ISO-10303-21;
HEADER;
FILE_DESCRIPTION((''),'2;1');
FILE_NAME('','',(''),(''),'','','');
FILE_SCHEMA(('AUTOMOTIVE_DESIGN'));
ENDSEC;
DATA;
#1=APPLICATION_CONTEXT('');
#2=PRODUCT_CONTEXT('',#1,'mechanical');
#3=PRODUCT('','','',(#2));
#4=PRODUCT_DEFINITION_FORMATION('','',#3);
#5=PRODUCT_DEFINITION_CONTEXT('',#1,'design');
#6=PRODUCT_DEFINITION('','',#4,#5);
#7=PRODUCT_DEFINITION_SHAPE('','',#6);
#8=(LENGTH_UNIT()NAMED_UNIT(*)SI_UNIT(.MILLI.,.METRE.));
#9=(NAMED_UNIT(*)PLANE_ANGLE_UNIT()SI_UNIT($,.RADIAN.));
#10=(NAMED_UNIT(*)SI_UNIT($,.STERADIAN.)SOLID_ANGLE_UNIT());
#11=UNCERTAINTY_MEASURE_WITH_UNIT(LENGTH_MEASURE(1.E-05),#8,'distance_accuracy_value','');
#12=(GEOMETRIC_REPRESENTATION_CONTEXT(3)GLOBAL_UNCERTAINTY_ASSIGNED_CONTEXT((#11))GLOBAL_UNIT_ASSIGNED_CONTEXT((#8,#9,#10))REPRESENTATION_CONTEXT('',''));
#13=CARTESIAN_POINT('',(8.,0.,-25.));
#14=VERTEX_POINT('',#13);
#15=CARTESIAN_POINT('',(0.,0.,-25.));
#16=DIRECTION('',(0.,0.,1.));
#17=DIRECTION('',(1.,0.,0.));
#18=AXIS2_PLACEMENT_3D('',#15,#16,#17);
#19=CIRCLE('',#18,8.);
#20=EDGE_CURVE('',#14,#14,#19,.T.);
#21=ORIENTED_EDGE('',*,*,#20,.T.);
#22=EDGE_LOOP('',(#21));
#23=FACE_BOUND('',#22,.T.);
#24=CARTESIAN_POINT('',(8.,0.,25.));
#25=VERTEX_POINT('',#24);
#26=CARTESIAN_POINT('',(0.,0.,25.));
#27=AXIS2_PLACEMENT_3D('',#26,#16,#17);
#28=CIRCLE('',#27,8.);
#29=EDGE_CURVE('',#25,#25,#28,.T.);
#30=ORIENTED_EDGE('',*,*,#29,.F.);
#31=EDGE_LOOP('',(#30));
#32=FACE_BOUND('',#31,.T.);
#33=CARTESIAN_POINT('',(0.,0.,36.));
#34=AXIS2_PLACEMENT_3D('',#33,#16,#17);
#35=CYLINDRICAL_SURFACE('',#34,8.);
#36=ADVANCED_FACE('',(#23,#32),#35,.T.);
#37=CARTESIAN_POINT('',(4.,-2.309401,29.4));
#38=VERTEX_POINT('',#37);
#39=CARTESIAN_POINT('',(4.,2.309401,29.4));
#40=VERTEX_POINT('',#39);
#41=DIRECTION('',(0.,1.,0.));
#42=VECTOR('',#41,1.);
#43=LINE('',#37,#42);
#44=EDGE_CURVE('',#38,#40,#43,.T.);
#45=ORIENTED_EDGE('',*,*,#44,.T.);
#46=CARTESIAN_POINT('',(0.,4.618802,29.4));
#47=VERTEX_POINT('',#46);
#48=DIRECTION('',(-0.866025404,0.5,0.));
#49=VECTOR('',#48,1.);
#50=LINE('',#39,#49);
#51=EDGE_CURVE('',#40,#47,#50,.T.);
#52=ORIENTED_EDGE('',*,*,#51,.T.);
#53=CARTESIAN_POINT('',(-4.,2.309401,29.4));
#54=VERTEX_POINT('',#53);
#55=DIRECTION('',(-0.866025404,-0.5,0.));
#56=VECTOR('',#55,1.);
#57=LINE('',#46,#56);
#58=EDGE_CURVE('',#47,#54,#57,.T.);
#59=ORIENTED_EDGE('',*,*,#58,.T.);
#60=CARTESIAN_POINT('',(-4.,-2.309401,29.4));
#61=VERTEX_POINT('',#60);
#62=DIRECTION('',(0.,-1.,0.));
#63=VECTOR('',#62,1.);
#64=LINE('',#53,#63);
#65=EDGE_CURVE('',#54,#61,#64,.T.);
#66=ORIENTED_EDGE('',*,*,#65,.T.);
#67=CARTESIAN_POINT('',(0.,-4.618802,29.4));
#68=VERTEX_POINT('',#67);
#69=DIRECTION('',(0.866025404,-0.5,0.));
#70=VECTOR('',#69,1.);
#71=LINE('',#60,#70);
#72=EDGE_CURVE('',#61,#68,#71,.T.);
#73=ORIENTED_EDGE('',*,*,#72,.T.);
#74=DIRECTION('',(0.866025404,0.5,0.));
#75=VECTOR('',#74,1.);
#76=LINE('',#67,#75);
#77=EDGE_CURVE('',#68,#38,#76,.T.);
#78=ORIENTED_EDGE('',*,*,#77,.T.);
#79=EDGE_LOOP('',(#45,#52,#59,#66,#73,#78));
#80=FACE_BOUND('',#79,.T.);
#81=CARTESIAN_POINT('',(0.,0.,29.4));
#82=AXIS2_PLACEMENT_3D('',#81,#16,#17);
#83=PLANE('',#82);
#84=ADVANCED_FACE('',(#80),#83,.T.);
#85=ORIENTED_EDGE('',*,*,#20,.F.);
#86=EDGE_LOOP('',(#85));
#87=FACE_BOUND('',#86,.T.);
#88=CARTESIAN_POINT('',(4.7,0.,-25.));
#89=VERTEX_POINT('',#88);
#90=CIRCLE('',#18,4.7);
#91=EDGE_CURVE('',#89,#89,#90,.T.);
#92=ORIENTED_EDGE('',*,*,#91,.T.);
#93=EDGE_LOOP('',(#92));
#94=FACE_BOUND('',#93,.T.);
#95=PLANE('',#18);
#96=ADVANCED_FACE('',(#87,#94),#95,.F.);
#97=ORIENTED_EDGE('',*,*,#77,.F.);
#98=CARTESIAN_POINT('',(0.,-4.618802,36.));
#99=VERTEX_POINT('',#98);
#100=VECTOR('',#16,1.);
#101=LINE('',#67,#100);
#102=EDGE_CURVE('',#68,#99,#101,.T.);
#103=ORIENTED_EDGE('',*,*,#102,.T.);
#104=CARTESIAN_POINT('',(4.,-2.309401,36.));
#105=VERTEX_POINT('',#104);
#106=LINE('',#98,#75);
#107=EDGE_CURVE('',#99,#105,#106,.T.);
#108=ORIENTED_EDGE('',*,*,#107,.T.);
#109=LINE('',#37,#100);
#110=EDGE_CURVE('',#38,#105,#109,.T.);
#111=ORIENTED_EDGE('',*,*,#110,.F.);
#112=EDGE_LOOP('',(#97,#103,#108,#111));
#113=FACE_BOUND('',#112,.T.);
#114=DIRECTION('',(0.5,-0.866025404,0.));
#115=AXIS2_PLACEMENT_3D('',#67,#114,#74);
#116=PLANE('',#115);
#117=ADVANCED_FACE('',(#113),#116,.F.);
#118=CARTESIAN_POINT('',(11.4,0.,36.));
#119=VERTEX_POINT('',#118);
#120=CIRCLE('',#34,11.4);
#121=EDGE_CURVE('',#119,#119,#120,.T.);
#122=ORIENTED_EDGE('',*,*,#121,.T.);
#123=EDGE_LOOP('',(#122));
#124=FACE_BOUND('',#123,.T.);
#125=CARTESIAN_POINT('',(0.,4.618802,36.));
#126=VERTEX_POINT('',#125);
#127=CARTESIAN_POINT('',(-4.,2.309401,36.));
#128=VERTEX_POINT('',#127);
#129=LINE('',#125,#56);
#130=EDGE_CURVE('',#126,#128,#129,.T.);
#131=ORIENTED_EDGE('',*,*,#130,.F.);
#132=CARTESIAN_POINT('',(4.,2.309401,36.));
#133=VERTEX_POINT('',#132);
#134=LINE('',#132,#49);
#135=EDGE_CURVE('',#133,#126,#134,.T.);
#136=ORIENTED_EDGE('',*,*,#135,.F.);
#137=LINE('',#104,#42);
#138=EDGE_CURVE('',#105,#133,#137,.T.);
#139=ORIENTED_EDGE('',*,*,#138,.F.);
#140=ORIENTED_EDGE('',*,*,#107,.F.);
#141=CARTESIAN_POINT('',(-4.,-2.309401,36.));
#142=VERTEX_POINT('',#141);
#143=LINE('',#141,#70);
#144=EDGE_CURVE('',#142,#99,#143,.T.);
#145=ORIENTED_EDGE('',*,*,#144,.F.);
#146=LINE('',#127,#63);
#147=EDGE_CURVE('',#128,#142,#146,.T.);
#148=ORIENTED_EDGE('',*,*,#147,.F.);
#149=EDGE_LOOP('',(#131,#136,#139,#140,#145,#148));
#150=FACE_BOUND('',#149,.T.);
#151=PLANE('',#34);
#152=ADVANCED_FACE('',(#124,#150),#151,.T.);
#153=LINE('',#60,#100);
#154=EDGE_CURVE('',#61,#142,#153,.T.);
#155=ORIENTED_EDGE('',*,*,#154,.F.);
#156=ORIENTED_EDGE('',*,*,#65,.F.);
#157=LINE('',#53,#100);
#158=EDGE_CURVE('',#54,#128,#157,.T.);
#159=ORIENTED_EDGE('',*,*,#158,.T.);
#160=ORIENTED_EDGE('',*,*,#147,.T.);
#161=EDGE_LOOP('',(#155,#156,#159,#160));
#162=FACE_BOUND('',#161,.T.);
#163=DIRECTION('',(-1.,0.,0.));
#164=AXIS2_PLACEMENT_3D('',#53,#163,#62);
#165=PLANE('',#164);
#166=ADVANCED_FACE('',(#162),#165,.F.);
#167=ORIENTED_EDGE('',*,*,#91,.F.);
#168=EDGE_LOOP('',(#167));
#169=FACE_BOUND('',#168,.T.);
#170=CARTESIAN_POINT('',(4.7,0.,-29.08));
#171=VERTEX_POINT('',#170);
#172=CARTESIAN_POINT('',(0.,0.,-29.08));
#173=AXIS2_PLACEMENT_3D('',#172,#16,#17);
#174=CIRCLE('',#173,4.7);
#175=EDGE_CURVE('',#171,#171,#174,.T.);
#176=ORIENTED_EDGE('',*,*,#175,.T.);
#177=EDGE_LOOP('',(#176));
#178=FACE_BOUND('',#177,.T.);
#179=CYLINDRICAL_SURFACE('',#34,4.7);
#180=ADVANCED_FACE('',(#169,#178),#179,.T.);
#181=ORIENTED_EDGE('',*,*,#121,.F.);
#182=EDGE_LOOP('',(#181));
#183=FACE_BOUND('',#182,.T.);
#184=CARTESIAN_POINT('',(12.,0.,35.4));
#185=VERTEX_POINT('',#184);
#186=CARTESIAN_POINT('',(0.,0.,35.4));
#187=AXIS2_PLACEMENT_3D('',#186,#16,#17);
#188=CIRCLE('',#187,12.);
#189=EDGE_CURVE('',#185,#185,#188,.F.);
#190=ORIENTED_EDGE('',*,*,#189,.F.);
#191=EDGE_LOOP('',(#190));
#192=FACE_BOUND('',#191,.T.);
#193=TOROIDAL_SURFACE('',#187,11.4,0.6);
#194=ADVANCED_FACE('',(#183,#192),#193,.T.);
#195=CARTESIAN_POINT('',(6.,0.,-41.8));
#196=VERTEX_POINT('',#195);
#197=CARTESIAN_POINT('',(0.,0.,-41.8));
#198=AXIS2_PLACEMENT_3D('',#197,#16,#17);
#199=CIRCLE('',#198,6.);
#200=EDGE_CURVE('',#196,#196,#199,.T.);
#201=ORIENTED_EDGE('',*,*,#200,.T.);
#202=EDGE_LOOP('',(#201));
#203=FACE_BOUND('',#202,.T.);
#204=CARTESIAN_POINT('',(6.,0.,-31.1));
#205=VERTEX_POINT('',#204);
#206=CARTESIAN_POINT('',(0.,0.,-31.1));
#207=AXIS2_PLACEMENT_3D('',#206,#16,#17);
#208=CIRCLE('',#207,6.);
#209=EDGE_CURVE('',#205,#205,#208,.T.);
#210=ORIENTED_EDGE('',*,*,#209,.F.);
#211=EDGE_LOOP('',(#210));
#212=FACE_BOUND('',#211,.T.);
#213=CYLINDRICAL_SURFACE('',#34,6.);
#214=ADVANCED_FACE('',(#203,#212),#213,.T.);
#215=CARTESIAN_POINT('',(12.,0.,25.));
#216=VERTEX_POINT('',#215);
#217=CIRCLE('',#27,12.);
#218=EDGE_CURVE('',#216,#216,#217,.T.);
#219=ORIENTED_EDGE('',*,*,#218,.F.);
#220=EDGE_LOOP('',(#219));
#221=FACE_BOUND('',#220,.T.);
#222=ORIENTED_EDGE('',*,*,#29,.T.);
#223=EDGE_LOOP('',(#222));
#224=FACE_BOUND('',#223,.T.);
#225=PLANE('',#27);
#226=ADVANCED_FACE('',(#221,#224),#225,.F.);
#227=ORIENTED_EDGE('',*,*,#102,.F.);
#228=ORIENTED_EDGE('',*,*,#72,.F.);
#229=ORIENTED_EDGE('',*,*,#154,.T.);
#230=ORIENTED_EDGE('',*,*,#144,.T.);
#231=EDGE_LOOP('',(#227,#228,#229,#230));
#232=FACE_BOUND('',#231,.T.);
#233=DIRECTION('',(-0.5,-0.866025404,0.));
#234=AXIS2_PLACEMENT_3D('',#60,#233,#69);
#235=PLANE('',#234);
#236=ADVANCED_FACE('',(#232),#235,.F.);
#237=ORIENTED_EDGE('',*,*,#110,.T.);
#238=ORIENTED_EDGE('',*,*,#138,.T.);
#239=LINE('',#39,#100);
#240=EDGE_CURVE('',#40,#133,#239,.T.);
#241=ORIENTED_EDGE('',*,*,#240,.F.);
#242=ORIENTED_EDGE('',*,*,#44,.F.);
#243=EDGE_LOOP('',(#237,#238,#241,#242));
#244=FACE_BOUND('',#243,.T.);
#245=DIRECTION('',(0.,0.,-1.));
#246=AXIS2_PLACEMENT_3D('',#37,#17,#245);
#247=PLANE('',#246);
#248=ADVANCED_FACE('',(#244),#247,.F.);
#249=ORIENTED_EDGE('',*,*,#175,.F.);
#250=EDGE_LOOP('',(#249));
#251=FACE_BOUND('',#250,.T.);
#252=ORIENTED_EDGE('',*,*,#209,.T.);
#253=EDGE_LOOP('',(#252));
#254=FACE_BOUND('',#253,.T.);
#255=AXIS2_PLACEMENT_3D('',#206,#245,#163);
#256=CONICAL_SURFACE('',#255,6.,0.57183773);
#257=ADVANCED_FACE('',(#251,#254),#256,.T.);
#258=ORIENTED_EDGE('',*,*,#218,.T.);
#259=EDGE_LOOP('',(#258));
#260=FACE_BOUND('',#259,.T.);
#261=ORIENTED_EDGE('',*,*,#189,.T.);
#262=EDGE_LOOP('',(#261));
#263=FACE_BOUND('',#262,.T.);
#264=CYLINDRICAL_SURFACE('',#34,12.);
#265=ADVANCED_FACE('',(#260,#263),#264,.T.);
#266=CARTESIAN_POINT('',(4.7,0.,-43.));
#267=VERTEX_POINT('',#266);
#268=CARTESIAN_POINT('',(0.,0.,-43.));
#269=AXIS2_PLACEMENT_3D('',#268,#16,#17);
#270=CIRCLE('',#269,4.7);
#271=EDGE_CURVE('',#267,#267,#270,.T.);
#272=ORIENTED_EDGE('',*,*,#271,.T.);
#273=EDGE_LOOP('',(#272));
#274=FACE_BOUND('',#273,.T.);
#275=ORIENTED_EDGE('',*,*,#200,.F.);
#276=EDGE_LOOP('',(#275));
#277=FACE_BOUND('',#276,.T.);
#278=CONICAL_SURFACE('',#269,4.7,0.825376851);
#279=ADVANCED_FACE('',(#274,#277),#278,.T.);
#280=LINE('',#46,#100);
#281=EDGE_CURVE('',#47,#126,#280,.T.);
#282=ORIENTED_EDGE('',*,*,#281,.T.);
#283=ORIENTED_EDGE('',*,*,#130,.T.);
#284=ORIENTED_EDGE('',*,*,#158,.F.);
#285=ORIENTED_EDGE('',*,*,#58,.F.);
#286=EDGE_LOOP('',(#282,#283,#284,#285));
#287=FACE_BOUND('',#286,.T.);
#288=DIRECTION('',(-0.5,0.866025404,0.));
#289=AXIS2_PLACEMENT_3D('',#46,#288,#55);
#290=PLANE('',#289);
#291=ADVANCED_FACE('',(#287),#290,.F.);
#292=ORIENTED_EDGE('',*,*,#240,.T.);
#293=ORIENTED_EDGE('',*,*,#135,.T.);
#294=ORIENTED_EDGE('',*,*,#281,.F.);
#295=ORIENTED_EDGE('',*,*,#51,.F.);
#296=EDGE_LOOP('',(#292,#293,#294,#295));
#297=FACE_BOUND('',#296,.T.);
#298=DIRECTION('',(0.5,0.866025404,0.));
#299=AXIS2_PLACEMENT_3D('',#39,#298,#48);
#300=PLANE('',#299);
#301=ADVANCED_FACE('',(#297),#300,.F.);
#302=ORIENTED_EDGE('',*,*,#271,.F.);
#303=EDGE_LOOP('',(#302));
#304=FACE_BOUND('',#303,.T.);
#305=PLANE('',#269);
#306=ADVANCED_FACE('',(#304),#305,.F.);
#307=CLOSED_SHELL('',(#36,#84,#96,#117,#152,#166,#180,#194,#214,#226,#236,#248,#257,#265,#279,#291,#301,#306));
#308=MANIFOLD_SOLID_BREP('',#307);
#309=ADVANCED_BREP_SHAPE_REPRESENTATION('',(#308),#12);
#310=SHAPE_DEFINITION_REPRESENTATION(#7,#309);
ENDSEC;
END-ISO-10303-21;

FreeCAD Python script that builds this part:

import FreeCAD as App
import Part
import Sketcher
from FreeCAD import Vector
Q = App.Units.Quantity


def edges_at(feature, points):
    """Names of the edges that pass closest to the given points."""
    edges = feature.Shape.Edges
    near = lambda p: min(range(len(edges)), key=lambda i: edges[i].distToShape(Part.Vertex(*p))[0])
    return sorted({f"Edge{near(p) + 1}" for p in points})

doc = App.newDocument("Part")
body = doc.addObject("PartDesign::Body", "Body")

# Sketch on XZ plane
sketch1 = body.newObject("Sketcher::SketchObject", "Sketch")
sketch1.AttachmentSupport = (doc.getObject("XZ_Plane"), [""])
sketch1.MapMode = "FlatFace"
sketch1.addGeometry(Part.LineSegment(Vector(0, 36, 0), Vector(0, -43, 0)), False)
sketch1.addGeometry(Part.LineSegment(Vector(0, -43, 0), Vector(-4.7, -43, 0)), False)
sketch1.addGeometry(Part.LineSegment(Vector(-4.7, -43, 0), Vector(-6, -41.8, 0)), False)
sketch1.addGeometry(Part.LineSegment(Vector(-6, -41.8, 0), Vector(-6, -31.1, 0)), False)
sketch1.addGeometry(Part.LineSegment(Vector(-6, -31.1, 0), Vector(-4.7, -29.08, 0)), False)
sketch1.addGeometry(Part.LineSegment(Vector(-4.7, -29.08, 0), Vector(-4.7, -25, 0)), False)
sketch1.addGeometry(Part.LineSegment(Vector(-4.7, -25, 0), Vector(-8, -25, 0)), False)
sketch1.addGeometry(Part.LineSegment(Vector(-8, -25, 0), Vector(-8, 25, 0)), False)
sketch1.addGeometry(Part.LineSegment(Vector(-8, 25, 0), Vector(-12, 25, 0)), False)
sketch1.addGeometry(Part.LineSegment(Vector(-12, 25, 0), Vector(-12, 36, 0)), False)
sketch1.addGeometry(Part.LineSegment(Vector(-12, 36, 0), Vector(0, 36, 0)), False)
sketch1.addConstraint(Sketcher.Constraint("Coincident", 0, 2, 1, 1))
sketch1.addConstraint(Sketcher.Constraint("Coincident", 1, 2, 2, 1))
sketch1.addConstraint(Sketcher.Constraint("Coincident", 2, 2, 3, 1))
sketch1.addConstraint(Sketcher.Constraint("Coincident", 3, 2, 4, 1))
sketch1.addConstraint(Sketcher.Constraint("Coincident", 4, 2, 5, 1))
sketch1.addConstraint(Sketcher.Constraint("Coincident", 5, 2, 6, 1))
sketch1.addConstraint(Sketcher.Constraint("Coincident", 6, 2, 7, 1))
sketch1.addConstraint(Sketcher.Constraint("Coincident", 7, 2, 8, 1))
sketch1.addConstraint(Sketcher.Constraint("Coincident", 8, 2, 9, 1))
sketch1.addConstraint(Sketcher.Constraint("Coincident", 9, 2, 10, 1))
sketch1.addConstraint(Sketcher.Constraint("Coincident", 10, 2, 0, 1))
sketch1.addConstraint(Sketcher.Constraint("Vertical", 0))
sketch1.addConstraint(Sketcher.Constraint("Horizontal", 1))
sketch1.addConstraint(Sketcher.Constraint("Vertical", 3))
sketch1.addConstraint(Sketcher.Constraint("Vertical", 5))
sketch1.addConstraint(Sketcher.Constraint("Horizontal", 6))
sketch1.addConstraint(Sketcher.Constraint("Vertical", 7))
sketch1.addConstraint(Sketcher.Constraint("Horizontal", 8))
sketch1.addConstraint(Sketcher.Constraint("Vertical", 9))
sketch1.addConstraint(Sketcher.Constraint("Horizontal", 10))
sketch1.addConstraint(Sketcher.Constraint("PointOnObject", 0, 2, -2))
sketch1.addConstraint(Sketcher.Constraint("Vertical", 1, 2, 4, 2))
sketch1.addConstraint(Sketcher.Constraint("DistanceX", 8, 2, 8, 1, 4.0))
sketch1.addConstraint(Sketcher.Constraint("DistanceX", 10, 1, 10, 2, 12.0))
sketch1.addConstraint(Sketcher.Constraint("DistanceY", 0, 2, 0, 1, 79.0))
sketch1.addConstraint(Sketcher.Constraint("DistanceY", 7, 1, 7, 2, 50.0))
sketch1.addConstraint(Sketcher.Constraint("DistanceY", 9, 1, 9, 2, 11.0))
sketch1.addConstraint(Sketcher.Constraint("DistanceX", 1, 2, 1, 1, 4.7))
sketch1.addConstraint(Sketcher.Constraint("DistanceY", 3, 1, 3, 2, 10.7))
sketch1.addConstraint(Sketcher.Constraint("DistanceY", 0, 2, -1, 1, 43.0))
sketch1.addConstraint(Sketcher.Constraint("DistanceX", 2, 2, -1, 1, 6.0))
sketch1.addConstraint(Sketcher.Constraint("DistanceY", 5, 1, 5, 2, 4.08))
sketch1.addConstraint(Sketcher.Constraint("DistanceY", 2, 2, -1, 1, 41.8))
revolution = body.newObject("PartDesign::Revolution", "Revolution")
revolution.Profile = sketch1
revolution.ReferenceAxis = (sketch1, ["V_Axis"])
revolution.Angle = 360

# Sketch on XY plane
sketch2 = body.newObject("Sketcher::SketchObject", "Sketch001")
sketch2.AttachmentSupport = (doc.getObject("XY_Plane"), [""])
sketch2.MapMode = "FlatFace"
sketch2.AttachmentOffset = App.Placement(Vector(0, 0, 36), App.Rotation())
sketch2.addGeometry(Part.LineSegment(Vector(4, 2.309401, 0), Vector(0, 4.618802, 0)), False)
sketch2.addGeometry(Part.LineSegment(Vector(0, 4.618802, 0), Vector(-4, 2.309401, 0)), False)
sketch2.addGeometry(Part.LineSegment(Vector(-4, 2.309401, 0), Vector(-4, -2.309401, 0)), False)
sketch2.addGeometry(Part.LineSegment(Vector(-4, -2.309401, 0), Vector(0, -4.618802, 0)), False)
sketch2.addGeometry(Part.LineSegment(Vector(0, -4.618802, 0), Vector(4, -2.309401, 0)), False)
sketch2.addGeometry(Part.LineSegment(Vector(4, -2.309401, 0), Vector(4, 2.309401, 0)), False)
sketch2.addConstraint(Sketcher.Constraint("Coincident", 0, 2, 1, 1))
sketch2.addConstraint(Sketcher.Constraint("Coincident", 1, 2, 2, 1))
sketch2.addConstraint(Sketcher.Constraint("Coincident", 2, 2, 3, 1))
sketch2.addConstraint(Sketcher.Constraint("Coincident", 3, 2, 4, 1))
sketch2.addConstraint(Sketcher.Constraint("Coincident", 4, 2, 5, 1))
sketch2.addConstraint(Sketcher.Constraint("Coincident", 5, 2, 0, 1))
sketch2.addConstraint(Sketcher.Constraint("Vertical", 2))
sketch2.addConstraint(Sketcher.Constraint("Vertical", 5))
sketch2.addConstraint(Sketcher.Constraint("Symmetric", 0, 2, 3, 2, -1, 1))
sketch2.addConstraint(Sketcher.Constraint("Symmetric", 1, 2, 4, 2, -1, 1))
sketch2.addConstraint(Sketcher.Constraint("PointOnObject", 0, 2, -2))
sketch2.addConstraint(Sketcher.Constraint("Parallel", 0, 3))
sketch2.addConstraint(Sketcher.Constraint("Horizontal", 2, 2, 4, 2))
sketch2.addConstraint(Sketcher.Constraint("Angle", 0, Q("150 deg")))
sketch2.addConstraint(Sketcher.Constraint("DistanceX", 1, 2, -1, 1, 4.0))
sketch2.addConstraint(Sketcher.Constraint("DistanceY", -1, 1, 1, 2, 2.309401))
pocket1 = body.newObject("PartDesign::Pocket", "Pocket")
pocket1.Profile = sketch2
pocket1.Length = 6.6
doc.recompute()

fillet = body.newObject("PartDesign::Fillet", "Fillet")
fillet.Base = (pocket1, edges_at(pocket1, [(-12, 0, 36)]))
fillet.Radius = 0.6

doc.recompute()
